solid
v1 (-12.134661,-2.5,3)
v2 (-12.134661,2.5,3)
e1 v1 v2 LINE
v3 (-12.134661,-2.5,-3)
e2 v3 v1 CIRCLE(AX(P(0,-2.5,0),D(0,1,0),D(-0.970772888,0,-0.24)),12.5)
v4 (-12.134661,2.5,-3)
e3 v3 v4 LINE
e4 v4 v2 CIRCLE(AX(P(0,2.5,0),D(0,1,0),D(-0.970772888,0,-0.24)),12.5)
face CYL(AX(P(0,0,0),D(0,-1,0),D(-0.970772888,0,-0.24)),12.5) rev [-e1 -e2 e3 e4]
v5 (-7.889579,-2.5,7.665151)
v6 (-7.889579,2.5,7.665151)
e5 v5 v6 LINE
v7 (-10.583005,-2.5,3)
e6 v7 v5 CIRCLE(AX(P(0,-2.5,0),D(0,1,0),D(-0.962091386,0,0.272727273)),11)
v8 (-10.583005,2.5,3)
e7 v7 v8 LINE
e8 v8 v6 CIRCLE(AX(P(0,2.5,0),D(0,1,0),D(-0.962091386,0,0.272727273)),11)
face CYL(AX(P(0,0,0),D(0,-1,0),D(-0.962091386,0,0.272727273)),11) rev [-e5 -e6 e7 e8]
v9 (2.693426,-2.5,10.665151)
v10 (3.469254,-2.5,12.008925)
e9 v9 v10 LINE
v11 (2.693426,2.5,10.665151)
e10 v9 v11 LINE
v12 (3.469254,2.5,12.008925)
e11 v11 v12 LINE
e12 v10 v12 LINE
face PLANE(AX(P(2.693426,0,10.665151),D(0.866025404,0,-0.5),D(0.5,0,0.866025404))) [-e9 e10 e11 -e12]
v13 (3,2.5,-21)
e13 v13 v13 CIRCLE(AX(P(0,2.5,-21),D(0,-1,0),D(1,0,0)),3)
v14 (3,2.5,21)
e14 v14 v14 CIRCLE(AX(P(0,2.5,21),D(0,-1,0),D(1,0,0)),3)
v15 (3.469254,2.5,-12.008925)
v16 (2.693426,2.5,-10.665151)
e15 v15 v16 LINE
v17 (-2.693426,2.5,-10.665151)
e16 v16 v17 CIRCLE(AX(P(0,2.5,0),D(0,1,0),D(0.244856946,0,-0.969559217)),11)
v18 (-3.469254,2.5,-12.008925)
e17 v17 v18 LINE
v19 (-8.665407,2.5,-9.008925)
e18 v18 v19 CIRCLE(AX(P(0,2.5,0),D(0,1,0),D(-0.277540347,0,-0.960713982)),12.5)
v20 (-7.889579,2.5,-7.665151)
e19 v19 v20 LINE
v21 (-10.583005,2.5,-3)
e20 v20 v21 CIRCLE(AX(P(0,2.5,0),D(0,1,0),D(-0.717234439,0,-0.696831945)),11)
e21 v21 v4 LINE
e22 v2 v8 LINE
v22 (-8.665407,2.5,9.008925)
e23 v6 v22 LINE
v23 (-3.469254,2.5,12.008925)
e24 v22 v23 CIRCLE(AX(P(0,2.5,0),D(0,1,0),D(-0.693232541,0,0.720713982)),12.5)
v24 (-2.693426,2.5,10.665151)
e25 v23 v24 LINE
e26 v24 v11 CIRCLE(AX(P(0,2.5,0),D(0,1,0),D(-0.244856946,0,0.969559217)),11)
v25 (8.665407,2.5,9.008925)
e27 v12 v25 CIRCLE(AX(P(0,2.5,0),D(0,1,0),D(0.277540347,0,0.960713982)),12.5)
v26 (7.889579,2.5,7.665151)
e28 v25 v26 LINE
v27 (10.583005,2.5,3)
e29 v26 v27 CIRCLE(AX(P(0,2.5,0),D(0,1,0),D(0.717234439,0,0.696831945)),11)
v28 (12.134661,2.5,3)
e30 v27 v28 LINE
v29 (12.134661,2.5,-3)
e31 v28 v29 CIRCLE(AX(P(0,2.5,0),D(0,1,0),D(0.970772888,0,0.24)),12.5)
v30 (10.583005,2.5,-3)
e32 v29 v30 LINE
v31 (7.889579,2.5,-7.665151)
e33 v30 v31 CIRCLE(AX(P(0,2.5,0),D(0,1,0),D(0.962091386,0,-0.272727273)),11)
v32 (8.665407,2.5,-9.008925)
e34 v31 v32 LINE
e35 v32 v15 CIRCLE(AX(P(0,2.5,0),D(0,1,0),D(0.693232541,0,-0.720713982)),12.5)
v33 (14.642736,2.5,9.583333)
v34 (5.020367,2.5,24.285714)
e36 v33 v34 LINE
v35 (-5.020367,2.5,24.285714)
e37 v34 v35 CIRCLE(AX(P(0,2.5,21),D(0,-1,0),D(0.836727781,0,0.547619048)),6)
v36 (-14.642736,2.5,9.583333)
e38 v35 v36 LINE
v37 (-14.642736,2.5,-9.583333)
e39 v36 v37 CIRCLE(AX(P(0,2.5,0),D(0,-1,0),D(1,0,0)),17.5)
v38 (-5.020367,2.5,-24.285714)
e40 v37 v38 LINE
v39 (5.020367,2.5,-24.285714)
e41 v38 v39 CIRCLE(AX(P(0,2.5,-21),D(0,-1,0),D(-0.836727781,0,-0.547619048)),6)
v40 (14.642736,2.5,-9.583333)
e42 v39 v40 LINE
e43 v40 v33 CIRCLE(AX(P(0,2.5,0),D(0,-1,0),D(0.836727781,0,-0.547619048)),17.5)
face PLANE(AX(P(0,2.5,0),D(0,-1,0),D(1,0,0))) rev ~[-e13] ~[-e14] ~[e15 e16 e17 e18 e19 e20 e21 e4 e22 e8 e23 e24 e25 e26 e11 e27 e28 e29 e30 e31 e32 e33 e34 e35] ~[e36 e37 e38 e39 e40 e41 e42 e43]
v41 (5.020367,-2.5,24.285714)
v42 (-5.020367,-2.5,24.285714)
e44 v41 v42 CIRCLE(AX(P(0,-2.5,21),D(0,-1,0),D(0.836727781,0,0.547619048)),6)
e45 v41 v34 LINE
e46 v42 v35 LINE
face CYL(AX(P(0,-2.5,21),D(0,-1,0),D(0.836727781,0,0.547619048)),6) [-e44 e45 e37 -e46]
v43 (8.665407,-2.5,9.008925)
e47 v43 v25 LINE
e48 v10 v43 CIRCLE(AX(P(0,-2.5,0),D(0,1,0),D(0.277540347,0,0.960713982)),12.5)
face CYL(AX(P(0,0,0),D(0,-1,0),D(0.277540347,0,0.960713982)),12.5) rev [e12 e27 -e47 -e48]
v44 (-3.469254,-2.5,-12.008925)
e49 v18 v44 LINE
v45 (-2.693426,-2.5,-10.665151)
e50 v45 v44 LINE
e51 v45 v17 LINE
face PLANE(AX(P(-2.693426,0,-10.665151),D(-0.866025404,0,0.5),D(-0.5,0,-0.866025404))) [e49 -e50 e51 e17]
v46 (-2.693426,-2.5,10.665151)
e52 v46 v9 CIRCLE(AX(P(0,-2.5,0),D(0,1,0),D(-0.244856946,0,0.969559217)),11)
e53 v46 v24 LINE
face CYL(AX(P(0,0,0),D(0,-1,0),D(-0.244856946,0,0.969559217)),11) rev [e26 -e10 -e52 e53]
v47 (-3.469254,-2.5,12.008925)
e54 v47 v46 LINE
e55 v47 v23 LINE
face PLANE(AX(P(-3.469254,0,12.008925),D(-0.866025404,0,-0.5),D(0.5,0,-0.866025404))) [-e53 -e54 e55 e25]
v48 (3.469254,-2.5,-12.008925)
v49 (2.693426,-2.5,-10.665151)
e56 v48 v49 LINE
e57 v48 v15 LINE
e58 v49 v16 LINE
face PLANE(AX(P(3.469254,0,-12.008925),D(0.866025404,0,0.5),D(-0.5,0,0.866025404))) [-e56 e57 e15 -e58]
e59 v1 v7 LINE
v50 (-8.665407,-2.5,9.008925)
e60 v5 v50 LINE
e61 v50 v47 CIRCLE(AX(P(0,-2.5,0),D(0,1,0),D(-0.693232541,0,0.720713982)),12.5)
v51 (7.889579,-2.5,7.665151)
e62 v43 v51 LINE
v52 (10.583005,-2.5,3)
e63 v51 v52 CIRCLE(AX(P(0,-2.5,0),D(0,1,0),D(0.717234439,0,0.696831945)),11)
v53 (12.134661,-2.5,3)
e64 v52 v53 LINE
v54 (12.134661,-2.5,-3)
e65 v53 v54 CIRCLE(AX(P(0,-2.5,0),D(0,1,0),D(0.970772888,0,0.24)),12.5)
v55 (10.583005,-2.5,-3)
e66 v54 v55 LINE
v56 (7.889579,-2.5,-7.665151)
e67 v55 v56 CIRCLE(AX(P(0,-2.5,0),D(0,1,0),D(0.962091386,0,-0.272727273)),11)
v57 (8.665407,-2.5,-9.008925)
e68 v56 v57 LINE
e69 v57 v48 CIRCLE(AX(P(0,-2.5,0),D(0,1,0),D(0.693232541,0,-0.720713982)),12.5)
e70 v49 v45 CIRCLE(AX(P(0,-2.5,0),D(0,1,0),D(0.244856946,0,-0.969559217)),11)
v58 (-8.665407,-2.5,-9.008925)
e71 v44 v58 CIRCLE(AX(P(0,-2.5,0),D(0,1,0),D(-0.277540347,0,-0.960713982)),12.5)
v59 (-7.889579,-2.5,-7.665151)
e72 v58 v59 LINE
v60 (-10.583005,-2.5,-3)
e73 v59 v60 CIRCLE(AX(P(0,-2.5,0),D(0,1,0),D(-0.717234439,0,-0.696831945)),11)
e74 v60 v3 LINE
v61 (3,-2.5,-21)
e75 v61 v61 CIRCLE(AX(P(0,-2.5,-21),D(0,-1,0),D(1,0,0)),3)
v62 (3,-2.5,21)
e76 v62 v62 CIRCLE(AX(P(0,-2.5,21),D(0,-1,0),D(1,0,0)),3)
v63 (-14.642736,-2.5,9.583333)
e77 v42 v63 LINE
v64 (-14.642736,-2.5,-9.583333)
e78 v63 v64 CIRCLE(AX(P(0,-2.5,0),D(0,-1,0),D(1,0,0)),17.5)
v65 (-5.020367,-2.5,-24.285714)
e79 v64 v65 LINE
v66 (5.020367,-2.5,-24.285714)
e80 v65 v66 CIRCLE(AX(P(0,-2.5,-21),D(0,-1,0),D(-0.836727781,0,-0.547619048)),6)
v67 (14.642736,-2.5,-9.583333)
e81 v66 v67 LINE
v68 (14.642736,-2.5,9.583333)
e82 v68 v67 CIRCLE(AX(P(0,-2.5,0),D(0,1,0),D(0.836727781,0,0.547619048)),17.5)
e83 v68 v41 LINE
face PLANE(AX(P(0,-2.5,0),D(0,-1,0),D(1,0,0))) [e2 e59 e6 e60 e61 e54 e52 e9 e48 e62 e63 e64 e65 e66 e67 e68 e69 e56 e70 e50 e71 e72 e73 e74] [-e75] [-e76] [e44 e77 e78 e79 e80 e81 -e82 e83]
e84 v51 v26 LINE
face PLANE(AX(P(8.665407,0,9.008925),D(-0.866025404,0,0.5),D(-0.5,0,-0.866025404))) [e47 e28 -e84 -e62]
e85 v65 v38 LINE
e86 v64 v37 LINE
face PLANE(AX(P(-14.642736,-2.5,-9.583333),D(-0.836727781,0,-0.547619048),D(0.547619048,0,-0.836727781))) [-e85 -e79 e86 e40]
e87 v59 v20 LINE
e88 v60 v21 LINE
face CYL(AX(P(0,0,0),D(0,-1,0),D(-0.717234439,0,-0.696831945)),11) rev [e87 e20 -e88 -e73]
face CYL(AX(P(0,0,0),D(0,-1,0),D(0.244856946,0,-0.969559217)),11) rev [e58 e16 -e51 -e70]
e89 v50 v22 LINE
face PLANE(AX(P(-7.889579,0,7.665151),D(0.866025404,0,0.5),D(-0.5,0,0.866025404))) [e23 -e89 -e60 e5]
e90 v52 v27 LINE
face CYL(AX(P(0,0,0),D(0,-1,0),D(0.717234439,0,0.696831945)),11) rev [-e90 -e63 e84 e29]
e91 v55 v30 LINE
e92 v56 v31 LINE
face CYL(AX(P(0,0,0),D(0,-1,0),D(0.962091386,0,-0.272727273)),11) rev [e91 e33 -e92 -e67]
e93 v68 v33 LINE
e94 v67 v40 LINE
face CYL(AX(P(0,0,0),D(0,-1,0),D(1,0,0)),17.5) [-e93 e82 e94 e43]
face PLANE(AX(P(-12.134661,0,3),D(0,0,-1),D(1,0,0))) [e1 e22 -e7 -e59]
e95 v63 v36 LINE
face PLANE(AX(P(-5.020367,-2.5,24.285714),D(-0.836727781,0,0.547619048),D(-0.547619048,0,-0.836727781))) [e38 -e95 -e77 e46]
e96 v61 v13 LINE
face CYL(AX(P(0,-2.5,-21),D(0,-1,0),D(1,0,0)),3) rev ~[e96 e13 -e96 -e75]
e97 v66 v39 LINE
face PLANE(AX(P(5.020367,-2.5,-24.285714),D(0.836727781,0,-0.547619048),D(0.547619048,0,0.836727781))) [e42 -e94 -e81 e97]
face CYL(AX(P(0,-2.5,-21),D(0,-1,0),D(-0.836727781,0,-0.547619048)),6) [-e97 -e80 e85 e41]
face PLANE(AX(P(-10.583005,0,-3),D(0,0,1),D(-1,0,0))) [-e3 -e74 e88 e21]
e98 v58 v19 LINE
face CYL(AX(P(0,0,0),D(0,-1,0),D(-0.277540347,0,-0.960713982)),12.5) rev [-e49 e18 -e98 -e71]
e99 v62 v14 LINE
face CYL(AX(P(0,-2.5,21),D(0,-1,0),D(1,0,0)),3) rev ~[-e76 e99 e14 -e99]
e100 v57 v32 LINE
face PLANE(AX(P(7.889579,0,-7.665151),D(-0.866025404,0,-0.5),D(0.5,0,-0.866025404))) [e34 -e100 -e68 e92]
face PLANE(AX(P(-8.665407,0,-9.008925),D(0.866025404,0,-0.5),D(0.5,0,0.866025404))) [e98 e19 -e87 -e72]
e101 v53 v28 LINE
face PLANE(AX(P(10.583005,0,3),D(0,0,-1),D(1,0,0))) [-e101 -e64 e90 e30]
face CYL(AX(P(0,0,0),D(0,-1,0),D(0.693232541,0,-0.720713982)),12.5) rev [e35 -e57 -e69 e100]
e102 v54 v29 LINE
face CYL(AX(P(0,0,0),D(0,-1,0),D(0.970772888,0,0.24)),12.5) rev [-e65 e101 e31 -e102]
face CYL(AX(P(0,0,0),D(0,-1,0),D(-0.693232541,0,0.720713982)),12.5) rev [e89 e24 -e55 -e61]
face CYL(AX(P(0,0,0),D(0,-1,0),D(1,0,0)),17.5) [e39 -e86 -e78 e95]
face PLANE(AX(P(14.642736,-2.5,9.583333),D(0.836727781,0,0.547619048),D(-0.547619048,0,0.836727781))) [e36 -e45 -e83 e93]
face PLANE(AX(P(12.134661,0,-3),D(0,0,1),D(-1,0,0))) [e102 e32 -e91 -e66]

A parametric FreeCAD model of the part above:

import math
import FreeCAD as App
import Part
import Sketcher

V = App.Vector
Q = App.Units.Quantity

doc = App.newDocument("Part")
body = doc.addObject("PartDesign::Body", "Body")

# Sketch on XZ plane
sketch1 = body.newObject("Sketcher::SketchObject", "Sketch")
sketch1.AttachmentSupport = (doc.getObject("XZ_Plane"), [""])
sketch1.MapMode = "FlatFace"
sketch1.addGeometry(Part.Circle(V(0, 0, 0), V(0, 0, 1), 17.5), False)
sketch1.addGeometry(Part.LineSegment(V(-2.693426, -10.665151, 0), V(-3.469254, -12.008925, 0)), False)
sketch1.addGeometry(Part.ArcOfCircle(Part.Circle(V(0, 0, 0), V(0, 0, 1), 12.5), math.radians(-133.88654), math.radians(-106.11346)), False)
sketch1.addGeometry(Part.LineSegment(V(-8.665407, -9.008925, 0), V(-7.889579, -7.665151, 0)), False)
sketch1.addGeometry(Part.ArcOfCircle(Part.Circle(V(0, 0, 0), V(0, 0, 1), 11), math.radians(-164.17338), math.radians(-135.82662)), False)
sketch1.addGeometry(Part.LineSegment(V(-10.583005, -3, 0), V(-12.134661, -3, 0)), False)
sketch1.addGeometry(Part.ArcOfCircle(Part.Circle(V(0, 0, 0), V(0, 0, 1), 12.5), math.radians(166.11346), math.radians(193.88654)), False)
sketch1.addGeometry(Part.LineSegment(V(-12.134661, 3, 0), V(-10.583005, 3, 0)), False)
sketch1.addGeometry(Part.ArcOfCircle(Part.Circle(V(0, 0, 0), V(0, 0, 1), 11), math.radians(135.82662), math.radians(164.17338)), False)
sketch1.addGeometry(Part.LineSegment(V(-7.889579, 7.665151, 0), V(-8.665407, 9.008925, 0)), False)
sketch1.addGeometry(Part.ArcOfCircle(Part.Circle(V(0, 0, 0), V(0, 0, 1), 12.5), math.radians(106.11346), math.radians(133.88654)), False)
sketch1.addGeometry(Part.LineSegment(V(-3.469254, 12.008925, 0), V(-2.693426, 10.665151, 0)), False)
sketch1.addGeometry(Part.ArcOfCircle(Part.Circle(V(0, 0, 0), V(0, 0, 1), 11), math.radians(75.82662), math.radians(104.17338)), False)
sketch1.addGeometry(Part.LineSegment(V(2.693426, 10.665151, 0), V(3.469254, 12.008925, 0)), False)
sketch1.addGeometry(Part.ArcOfCircle(Part.Circle(V(0, 0, 0), V(0, 0, 1), 12.5), math.radians(46.11346), math.radians(73.88654)), False)
sketch1.addGeometry(Part.LineSegment(V(8.665407, 9.008925, 0), V(7.889579, 7.665151, 0)), False)
sketch1.addGeometry(Part.ArcOfCircle(Part.Circle(V(0, 0, 0), V(0, 0, 1), 11), math.radians(15.82662), math.radians(44.17338)), False)
sketch1.addGeometry(Part.LineSegment(V(10.583005, 3, 0), V(12.134661, 3, 0)), False)
sketch1.addGeometry(Part.ArcOfCircle(Part.Circle(V(0, 0, 0), V(0, 0, 1), 12.5), math.radians(-13.88654), math.radians(13.88654)), False)
sketch1.addGeometry(Part.LineSegment(V(12.134661, -3, 0), V(10.583005, -3, 0)), False)
sketch1.addGeometry(Part.ArcOfCircle(Part.Circle(V(0, 0, 0), V(0, 0, 1), 11), math.radians(-44.17338), math.radians(-15.82662)), False)
sketch1.addGeometry(Part.LineSegment(V(7.889579, -7.665151, 0), V(8.665407, -9.008925, 0)), False)
sketch1.addGeometry(Part.ArcOfCircle(Part.Circle(V(0, 0, 0), V(0, 0, 1), 12.5), math.radians(-73.88654), math.radians(-46.11346)), False)
sketch1.addGeometry(Part.LineSegment(V(3.469254, -12.008925, 0), V(2.693426, -10.665151, 0)), False)
sketch1.addGeometry(Part.ArcOfCircle(Part.Circle(V(0, 0, 0), V(0, 0, 1), 11), math.radians(-104.17338), math.radians(-75.82662)), False)
sketch1.addConstraint(Sketcher.Constraint("Coincident", 1, 2, 2, 2))
sketch1.addConstraint(Sketcher.Constraint("Coincident", 2, 1, 3, 1))
sketch1.addConstraint(Sketcher.Constraint("Coincident", 3, 2, 4, 2))
sketch1.addConstraint(Sketcher.Constraint("Coincident", 4, 1, 5, 1))
sketch1.addConstraint(Sketcher.Constraint("Coincident", 5, 2, 6, 2))
sketch1.addConstraint(Sketcher.Constraint("Coincident", 6, 1, 7, 1))
sketch1.addConstraint(Sketcher.Constraint("Coincident", 7, 2, 8, 2))
sketch1.addConstraint(Sketcher.Constraint("Coincident", 8, 1, 9, 1))
sketch1.addConstraint(Sketcher.Constraint("Coincident", 9, 2, 10, 2))
sketch1.addConstraint(Sketcher.Constraint("Coincident", 10, 1, 11, 1))
sketch1.addConstraint(Sketcher.Constraint("Coincident", 11, 2, 12, 2))
sketch1.addConstraint(Sketcher.Constraint("Coincident", 12, 1, 13, 1))
sketch1.addConstraint(Sketcher.Constraint("Coincident", 13, 2, 14, 2))
sketch1.addConstraint(Sketcher.Constraint("Coincident", 14, 1, 15, 1))
sketch1.addConstraint(Sketcher.Constraint("Coincident", 15, 2, 16, 2))
sketch1.addConstraint(Sketcher.Constraint("Coincident", 16, 1, 17, 1))
sketch1.addConstraint(Sketcher.Constraint("Coincident", 17, 2, 18, 2))
sketch1.addConstraint(Sketcher.Constraint("Coincident", 18, 1, 19, 1))
sketch1.addConstraint(Sketcher.Constraint("Coincident", 19, 2, 20, 2))
sketch1.addConstraint(Sketcher.Constraint("Coincident", 20, 1, 21, 1))
sketch1.addConstraint(Sketcher.Constraint("Coincident", 21, 2, 22, 2))
sketch1.addConstraint(Sketcher.Constraint("Coincident", 22, 1, 23, 1))
sketch1.addConstraint(Sketcher.Constraint("Coincident", 23, 2, 24, 2))
sketch1.addConstraint(Sketcher.Constraint("Coincident", 24, 1, 1, 1))
sketch1.addConstraint(Sketcher.Constraint("Horizontal", 5))
sketch1.addConstraint(Sketcher.Constraint("Horizontal", 7))
sketch1.addConstraint(Sketcher.Constraint("Horizontal", 17))
sketch1.addConstraint(Sketcher.Constraint("Horizontal", 19))
sketch1.addConstraint(Sketcher.Constraint("Coincident", 0, 3, -1, 1))
sketch1.addConstraint(Sketcher.Constraint("Coincident", 2, 3, -1, 1))
sketch1.addConstraint(Sketcher.Constraint("Coincident", 4, 3, -1, 1))
sketch1.addConstraint(Sketcher.Constraint("Coincident", 6, 3, -1, 1))
sketch1.addConstraint(Sketcher.Constraint("Coincident", 8, 3, -1, 1))
sketch1.addConstraint(Sketcher.Constraint("Coincident", 10, 3, -1, 1))
sketch1.addConstraint(Sketcher.Constraint("Coincident", 12, 3, -1, 1))
sketch1.addConstraint(Sketcher.Constraint("Coincident", 14, 3, -1, 1))
sketch1.addConstraint(Sketcher.Constraint("Coincident", 16, 3, -1, 1))
sketch1.addConstraint(Sketcher.Constraint("Coincident", 18, 3, -1, 1))
sketch1.addConstraint(Sketcher.Constraint("Coincident", 20, 3, -1, 1))
sketch1.addConstraint(Sketcher.Constraint("Coincident", 22, 3, -1, 1))
sketch1.addConstraint(Sketcher.Constraint("Coincident", 24, 3, -1, 1))
sketch1.addConstraint(Sketcher.Constraint("Equal", 2, 6))
sketch1.addConstraint(Sketcher.Constraint("Equal", 4, 8))
sketch1.addConstraint(Sketcher.Constraint("Equal", 6, 10))
sketch1.addConstraint(Sketcher.Constraint("Equal", 8, 12))
sketch1.addConstraint(Sketcher.Constraint("Equal", 10, 14))
sketch1.addConstraint(Sketcher.Constraint("Equal", 12, 16))
sketch1.addConstraint(Sketcher.Constraint("Equal", 14, 18))
sketch1.addConstraint(Sketcher.Constraint("Equal", 16, 20))
sketch1.addConstraint(Sketcher.Constraint("Equal", 18, 22))
sketch1.addConstraint(Sketcher.Constraint("Equal", 20, 24))
sketch1.addConstraint(Sketcher.Constraint("Parallel", 1, 3))
sketch1.addConstraint(Sketcher.Constraint("Parallel", 9, 11))
sketch1.addConstraint(Sketcher.Constraint("Parallel", 3, 13))
sketch1.addConstraint(Sketcher.Constraint("Parallel", 13, 15))
sketch1.addConstraint(Sketcher.Constraint("Parallel", 11, 21))
sketch1.addConstraint(Sketcher.Constraint("Parallel", 21, 23))
sketch1.addConstraint(Sketcher.Constraint("Horizontal", 11, 2, 12, 1))
sketch1.addConstraint(Sketcher.Constraint("Horizontal", 10, 1, 13, 2))
sketch1.addConstraint(Sketcher.Constraint("Horizontal", 9, 2, 14, 1))
sketch1.addConstraint(Sketcher.Constraint("Horizontal", 7, 2, 16, 1))
sketch1.addConstraint(Sketcher.Constraint("Horizontal", 5, 2, 18, 1))
sketch1.addConstraint(Sketcher.Constraint("Horizontal", 3, 2, 20, 1))
sketch1.addConstraint(Sketcher.Constraint("Horizontal", 1, 2, 22, 1))
sketch1.addConstraint(Sketcher.Constraint("Vertical", 5, 2, 6, 1))
sketch1.addConstraint(Sketcher.Constraint("Vertical", 3, 2, 8, 1))
sketch1.addConstraint(Sketcher.Constraint("Vertical", 1, 2, 10, 1))
sketch1.addConstraint(Sketcher.Constraint("Equal", 1, 3))
sketch1.addConstraint(Sketcher.Constraint("Diameter", 0, 35.0))
sketch1.addConstraint(Sketcher.Constraint("Radius", 4, 11.0))
sketch1.addConstraint(Sketcher.Constraint("Radius", 2, 12.5))
sketch1.addConstraint(Sketcher.Constraint("Angle", 1, Q("-120 deg")))
sketch1.addConstraint(Sketcher.Constraint("DistanceY", 4, 1, -1, 1, 3.0))
sketch1.addConstraint(Sketcher.Constraint("DistanceY", 1, 2, 2, 1, 3.0))
pad1 = body.newObject("PartDesign::Pad", "Pad")
pad1.Profile = sketch1
pad1.Length = 5
pad1.Midplane = True

# Sketch on XZ plane
sketch2 = body.newObject("Sketcher::SketchObject", "Sketch001")
sketch2.AttachmentSupport = (doc.getObject("XZ_Plane"), [""])
sketch2.MapMode = "FlatFace"
sketch2.AttachmentOffset = App.Placement(V(0, 0, 2.5), App.Rotation())
sketch2.addGeometry(Part.LineSegment(V(-5.020367, 24.285714, 0), V(-14.642736, 9.583333, 0)), False)
sketch2.addGeometry(Part.ArcOfCircle(Part.Circle(V(0, 0, 0), V(0, 0, 1), 17.5), math.radians(33.203823), math.radians(146.796177)), False)
sketch2.addGeometry(Part.LineSegment(V(14.642736, 9.583333, 0), V(5.020367, 24.285714, 0)), False)
sketch2.addGeometry(Part.ArcOfCircle(Part.Circle(V(0, 21, 0), V(0, 0, 1), 6), math.radians(33.203823), math.radians(146.796177)), False)
sketch2.addGeometry(Part.Circle(V(0, 21, 0), V(0, 0, 1), 3), False)
sketch2.addGeometry(Part.ArcOfCircle(Part.Circle(V(0, 0, 0), V(0, 0, 1), 17.5), math.radians(-146.796177), math.radians(-33.203823)), False)
sketch2.addGeometry(Part.LineSegment(V(-14.642736, -9.583333, 0), V(-5.020367, -24.285714, 0)), False)
sketch2.addGeometry(Part.ArcOfCircle(Part.Circle(V(0, -21, 0), V(0, 0, 1), 6), math.radians(-146.796177), math.radians(-33.203823)), False)
sketch2.addGeometry(Part.LineSegment(V(5.020367, -24.285714, 0), V(14.642736, -9.583333, 0)), False)
sketch2.addGeometry(Part.Circle(V(0, -21, 0), V(0, 0, 1), 3), False)
sketch2.addConstraint(Sketcher.Constraint("Tangent", 0, 2, 1, 2))
sketch2.addConstraint(Sketcher.Constraint("Tangent", 1, 1, 2, 1))
sketch2.addConstraint(Sketcher.Constraint("Tangent", 2, 2, 3, 1))
sketch2.addConstraint(Sketcher.Constraint("Tangent", 3, 2, 0, 1))
sketch2.addConstraint(Sketcher.Constraint("Tangent", 5, 1, 6, 1))
sketch2.addConstraint(Sketcher.Constraint("Tangent", 6, 2, 7, 1))
sketch2.addConstraint(Sketcher.Constraint("Tangent", 7, 2, 8, 1))
sketch2.addConstraint(Sketcher.Constraint("Tangent", 8, 2, 5, 2))
sketch2.addConstraint(Sketcher.Constraint("Coincident", 1, 3, -1, 1))
sketch2.addConstraint(Sketcher.Constraint("Coincident", 5, 3, -1, 1))
sketch2.addConstraint(Sketcher.Constraint("Coincident", 4, 3, 3, 3))
sketch2.addConstraint(Sketcher.Constraint("Coincident", 9, 3, 7, 3))
sketch2.addConstraint(Sketcher.Constraint("Equal", 1, 5))
sketch2.addConstraint(Sketcher.Constraint("Equal", 3, 7))
sketch2.addConstraint(Sketcher.Constraint("Equal", 4, 9))
sketch2.addConstraint(Sketcher.Constraint("Symmetric", 3, 3, 7, 3, -1, 1))
sketch2.addConstraint(Sketcher.Constraint("PointOnObject", 3, 3, -2))
sketch2.addConstraint(Sketcher.Constraint("Diameter", 4, 6.0))
sketch2.addConstraint(Sketcher.Constraint("Radius", 3, 6.0))
sketch2.addConstraint(Sketcher.Constraint("Radius", 1, 17.5))
sketch2.addConstraint(Sketcher.Constraint("DistanceY", -1, 1, 3, 3, 21.0))
pad2 = body.newObject("PartDesign::Pad", "Pad001")
pad2.Profile = sketch2
pad2.Length = 5
pad2.Reversed = True

doc.recompute()
